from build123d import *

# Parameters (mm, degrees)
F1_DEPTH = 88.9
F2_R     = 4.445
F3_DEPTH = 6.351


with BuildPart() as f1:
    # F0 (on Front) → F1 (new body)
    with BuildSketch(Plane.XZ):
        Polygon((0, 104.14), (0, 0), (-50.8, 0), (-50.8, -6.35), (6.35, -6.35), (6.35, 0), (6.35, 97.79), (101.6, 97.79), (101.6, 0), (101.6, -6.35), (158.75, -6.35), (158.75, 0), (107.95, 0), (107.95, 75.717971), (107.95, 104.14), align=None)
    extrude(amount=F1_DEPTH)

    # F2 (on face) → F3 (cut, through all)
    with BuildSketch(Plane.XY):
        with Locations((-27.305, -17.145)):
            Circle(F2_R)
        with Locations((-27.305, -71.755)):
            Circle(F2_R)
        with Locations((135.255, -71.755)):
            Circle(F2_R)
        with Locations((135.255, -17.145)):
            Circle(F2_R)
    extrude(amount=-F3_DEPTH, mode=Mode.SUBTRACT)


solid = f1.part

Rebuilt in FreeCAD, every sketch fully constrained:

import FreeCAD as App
import Part
import Sketcher

V = App.Vector
Q = App.Units.Quantity


def add_polygon(sketch, points):
    """Adds a closed chain of lines whose ends are joined by coincident constraints."""
    first, n = sketch.GeometryCount, len(points)
    for a, b in zip(points, points[1:] + points[:1]):
        sketch.addGeometry(Part.LineSegment(App.Vector(*a, 0), App.Vector(*b, 0)), False)
    for i in range(n):
        sketch.addConstraint(Sketcher.Constraint("Coincident", first + i, 2, first + (i + 1) % n, 1))

doc = App.newDocument("Part")
body = doc.addObject("PartDesign::Body", "Body")

# Sketch on XZ plane
sketch1 = body.newObject("Sketcher::SketchObject", "Sketch")
sketch1.AttachmentSupport = (doc.getObject("XZ_Plane"), [""])
sketch1.MapMode = "FlatFace"
add_polygon(sketch1, [(0, 104), (0, 0), (-51, 0), (-51, -6), (6, -6), (6, 98), (102, 98), (102, -6), (159, -6), (159, 0), (108, 0), (108, 104)])  # lines 0-11
sketch1.addConstraint(Sketcher.Constraint("Vertical", 0))
sketch1.addConstraint(Sketcher.Constraint("Horizontal", 1))
sketch1.addConstraint(Sketcher.Constraint("Vertical", 2))
sketch1.addConstraint(Sketcher.Constraint("Horizontal", 3))
sketch1.addConstraint(Sketcher.Constraint("Vertical", 4))
sketch1.addConstraint(Sketcher.Constraint("Horizontal", 5))
sketch1.addConstraint(Sketcher.Constraint("Vertical", 6))
sketch1.addConstraint(Sketcher.Constraint("Horizontal", 7))
sketch1.addConstraint(Sketcher.Constraint("Vertical", 8))
sketch1.addConstraint(Sketcher.Constraint("Horizontal", 9))
sketch1.addConstraint(Sketcher.Constraint("Vertical", 10))
sketch1.addConstraint(Sketcher.Constraint("Horizontal", 11))
sketch1.addConstraint(Sketcher.Constraint("Coincident", 0, 2, -1, 1))
sketch1.addConstraint(Sketcher.Constraint("PointOnObject", 8, 2, -1))
sketch1.addConstraint(Sketcher.Constraint("Horizontal", 3, 2, 6, 2))
sketch1.addConstraint(Sketcher.Constraint("Equal", 3, 7))
sketch1.addConstraint(Sketcher.Constraint("Equal", 1, 9))
sketch1.addConstraint(Sketcher.Constraint("Equal", 0, 4))
sketch1.addConstraint(Sketcher.Constraint("DistanceX", 1, 2, 1, 1, Q("2 in")))
sketch1.addConstraint(Sketcher.Constraint("DistanceY", 0, 2, 0, 1, Q("4.1 in")))
sketch1.addConstraint(Sketcher.Constraint("DistanceX", -1, 1, 5, 2, Q("4 in")))
sketch1.addConstraint(Sketcher.Constraint("DistanceX", 3, 1, 3, 2, Q("2.25 in")))
sketch1.addConstraint(Sketcher.Constraint("DistanceY", 2, 2, 2, 1, Q("0.25 in")))
pad1 = body.newObject("PartDesign::Pad", "Pad")
pad1.Profile = sketch1
pad1.Length = Q("3.5 in")

# Sketch on XY plane
sketch2 = body.newObject("Sketcher::SketchObject", "Sketch001")
sketch2.AttachmentSupport = (doc.getObject("XY_Plane"), [""])
sketch2.MapMode = "FlatFace"
sketch2.addGeometry(Part.Circle(V(-27.3, -17.1, 0), V(0, 0, 1), 4.4), False)
sketch2.addGeometry(Part.Circle(V(-27.3, -71.8, 0), V(0, 0, 1), 4.4), False)
sketch2.addGeometry(Part.Circle(V(135.3, -71.8, 0), V(0, 0, 1), 4.4), False)
sketch2.addGeometry(Part.Circle(V(135.3, -17.1, 0), V(0, 0, 1), 4.4), False)
sketch2.addConstraint(Sketcher.Constraint("Equal", 0, 1))
sketch2.addConstraint(Sketcher.Constraint("Equal", 1, 2))
sketch2.addConstraint(Sketcher.Constraint("Equal", 2, 3))
sketch2.addConstraint(Sketcher.Constraint("Horizontal", 1, 3, 2, 3))
sketch2.addConstraint(Sketcher.Constraint("Horizontal", 0, 3, 3, 3))
sketch2.addConstraint(Sketcher.Constraint("Vertical", 0, 3, 1, 3))
sketch2.addConstraint(Sketcher.Constraint("Vertical", 2, 3, 3, 3))
sketch2.addConstraint(Sketcher.Constraint("Diameter", 0, Q("0.35 in")))
sketch2.addConstraint(Sketcher.Constraint("DistanceX", 1, 3, 2, 3, Q("6.4 in")))
sketch2.addConstraint(Sketcher.Constraint("DistanceY", 1, 3, 0, 3, Q("2.15 in")))
sketch2.addConstraint(Sketcher.Constraint("DistanceX", 0, 3, -1, 1, Q("1.075 in")))
sketch2.addConstraint(Sketcher.Constraint("DistanceY", 0, 3, -1, 1, Q("0.675 in")))
pocket1 = body.newObject("PartDesign::Pocket", "Pocket")
pocket1.Profile = sketch2
pocket1.Type = "ThroughAll"

doc.recompute()
